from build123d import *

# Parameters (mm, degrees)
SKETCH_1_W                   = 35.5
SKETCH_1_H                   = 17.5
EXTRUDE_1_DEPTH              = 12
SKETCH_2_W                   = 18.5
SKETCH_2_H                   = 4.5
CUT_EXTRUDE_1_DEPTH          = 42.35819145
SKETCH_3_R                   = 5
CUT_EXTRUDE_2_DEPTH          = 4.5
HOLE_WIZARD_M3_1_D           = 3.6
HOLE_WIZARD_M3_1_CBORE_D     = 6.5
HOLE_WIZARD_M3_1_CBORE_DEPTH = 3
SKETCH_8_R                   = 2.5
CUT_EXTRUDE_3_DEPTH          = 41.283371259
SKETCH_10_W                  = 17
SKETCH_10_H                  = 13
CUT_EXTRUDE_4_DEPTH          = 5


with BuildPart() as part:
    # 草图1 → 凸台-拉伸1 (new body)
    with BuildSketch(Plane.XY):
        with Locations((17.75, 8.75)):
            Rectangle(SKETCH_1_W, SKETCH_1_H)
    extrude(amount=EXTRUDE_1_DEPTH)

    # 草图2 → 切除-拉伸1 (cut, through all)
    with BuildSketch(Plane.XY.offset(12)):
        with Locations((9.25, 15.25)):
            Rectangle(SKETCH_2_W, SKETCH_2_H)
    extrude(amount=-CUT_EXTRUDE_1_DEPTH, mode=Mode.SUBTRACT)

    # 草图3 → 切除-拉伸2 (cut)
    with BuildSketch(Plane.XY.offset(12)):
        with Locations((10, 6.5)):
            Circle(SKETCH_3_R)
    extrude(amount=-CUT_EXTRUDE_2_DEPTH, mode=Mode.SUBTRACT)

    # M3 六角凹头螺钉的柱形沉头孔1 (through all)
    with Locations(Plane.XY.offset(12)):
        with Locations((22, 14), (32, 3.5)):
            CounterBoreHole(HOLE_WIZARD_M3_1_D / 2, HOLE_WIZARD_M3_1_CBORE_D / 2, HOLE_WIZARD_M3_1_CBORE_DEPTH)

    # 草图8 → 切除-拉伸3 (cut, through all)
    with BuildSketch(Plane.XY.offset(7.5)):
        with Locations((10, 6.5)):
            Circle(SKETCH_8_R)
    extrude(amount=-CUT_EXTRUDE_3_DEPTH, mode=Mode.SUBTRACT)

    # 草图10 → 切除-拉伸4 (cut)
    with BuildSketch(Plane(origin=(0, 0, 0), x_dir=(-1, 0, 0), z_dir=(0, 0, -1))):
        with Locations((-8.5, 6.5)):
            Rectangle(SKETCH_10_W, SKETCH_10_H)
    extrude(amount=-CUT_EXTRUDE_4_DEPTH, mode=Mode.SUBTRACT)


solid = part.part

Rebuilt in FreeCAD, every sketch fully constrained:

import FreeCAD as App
import Part
import Sketcher
Q = App.Units.Quantity


def add_polygon(sketch, points):
    """Adds a closed chain of lines whose ends are joined by coincident constraints."""
    first, n = sketch.GeometryCount, len(points)
    for a, b in zip(points, points[1:] + points[:1]):
        sketch.addGeometry(Part.LineSegment(App.Vector(*a, 0), App.Vector(*b, 0)), False)
    for i in range(n):
        sketch.addConstraint(Sketcher.Constraint("Coincident", first + i, 2, first + (i + 1) % n, 1))

doc = App.newDocument("Part")
params = doc.addObject("Spreadsheet::Sheet", "Params")
for row, (alias, value) in enumerate([
    ("sketch1_width", "35.5 mm"),
    ("sketch1_height", "17.5 mm"),
    ("pad1_length", "12 mm"),
    ("sketch2_width", "18.5 mm"),
    ("sketch2_height", "4.5 mm"),
    ("sketch3_diameter", "10 mm"),
    ("pocket2_length", "4.5 mm"),
    ("sketch4_diameter", "3.6 mm"),
    ("hole_diameter", "3.6 mm"),
    ("hole_cbore_diameter", "6.5 mm"),
    ("hole_cbore_depth", "3 mm"),
    ("sketch5_diameter", "5 mm"),
    ("sketch6_width", "17 mm"),
    ("sketch6_height", "13 mm"),
    ("pocket4_length", "5 mm"),
], start=1):
    params.set(f"A{row}", alias)
    params.set(f"B{row}", "=" + value)
    params.setAlias(f"B{row}", alias)

body = doc.addObject("PartDesign::Body", "Body")

# Sketch on XY plane
sketch1 = body.newObject("Sketcher::SketchObject", "Sketch")
sketch1.AttachmentSupport = (doc.getObject("XY_Plane"), [""])
sketch1.MapMode = "FlatFace"
add_polygon(sketch1, [(0, 18), (0, 0), (36, 0), (36, 18)])  # lines 0-3
sketch1.addConstraint([
    Sketcher.Constraint("Vertical", 0),
    Sketcher.Constraint("Horizontal", 1),
    Sketcher.Constraint("Vertical", 2),
    Sketcher.Constraint("Horizontal", 3),
    Sketcher.Constraint("Coincident", 0, 2, -1, 1),
    Sketcher.Constraint("DistanceX", 1, 1, 1, 2, Q("35.5 mm")),
    Sketcher.Constraint("DistanceY", 0, 2, 0, 1, Q("17.5 mm")),
])
sketch1.setExpression("Constraints[9]", "Params.sketch1_width")
sketch1.setExpression("Constraints[10]", "Params.sketch1_height")
pad1 = body.newObject("PartDesign::Pad", "Pad")
pad1.Profile = sketch1
pad1.setExpression("Length", "Params.pad1_length")

# Sketch on XY plane
sketch2 = body.newObject("Sketcher::SketchObject", "Sketch001")
sketch2.AttachmentSupport = (doc.getObject("XY_Plane"), [""])
sketch2.MapMode = "FlatFace"
sketch2.AttachmentOffset = App.Placement(App.Vector(0, 0, 12), App.Rotation())
add_polygon(sketch2, [(0, 17.5), (0, 13), (18.5, 13), (18.5, 17.5)])  # lines 0-3
sketch2.addConstraint([
    Sketcher.Constraint("Vertical", 0),
    Sketcher.Constraint("Horizontal", 1),
    Sketcher.Constraint("Vertical", 2),
    Sketcher.Constraint("Horizontal", 3),
    Sketcher.Constraint("PointOnObject", 0, 2, -2),
    Sketcher.Constraint("DistanceX", 1, 1, 1, 2, Q("18.5 mm")),
    Sketcher.Constraint("DistanceY", 0, 2, 0, 1, Q("4.5 mm")),
    Sketcher.Constraint("DistanceY", -1, 1, 0, 2, Q("13 mm")),
])
sketch2.setExpression("Constraints[9]", "Params.sketch2_width")
sketch2.setExpression("Constraints[10]", "Params.sketch2_height")
pocket1 = body.newObject("PartDesign::Pocket", "Pocket")
pocket1.Profile = sketch2
pocket1.Type = "ThroughAll"

# Sketch on XY plane
sketch3 = body.newObject("Sketcher::SketchObject", "Sketch002")
sketch3.AttachmentSupport = (doc.getObject("XY_Plane"), [""])
sketch3.MapMode = "FlatFace"
sketch3.AttachmentOffset = App.Placement(App.Vector(0, 0, 12), App.Rotation())
sketch3.addGeometry(Part.Circle(App.Vector(10, 6, 0), App.Vector(0, 0, 1), 5), False)
sketch3.addConstraint([
    Sketcher.Constraint("Diameter", 0, Q("10 mm")),
    Sketcher.Constraint("DistanceX", -1, 1, 0, 3, Q("10 mm")),
    Sketcher.Constraint("DistanceY", -1, 1, 0, 3, Q("6.5 mm")),
])
sketch3.setExpression("Constraints[0]", "Params.sketch3_diameter")
pocket2 = body.newObject("PartDesign::Pocket", "Pocket001")
pocket2.Profile = sketch3
pocket2.setExpression("Length", "Params.pocket2_length")

# Sketch on XY plane
sketch4 = body.newObject("Sketcher::SketchObject", "Sketch003")
sketch4.AttachmentSupport = (doc.getObject("XY_Plane"), [""])
sketch4.MapMode = "FlatFace"
sketch4.AttachmentOffset = App.Placement(App.Vector(0, 0, 12), App.Rotation())
sketch4.addGeometry([
    Part.Circle(App.Vector(22, 14, 0), App.Vector(0, 0, 1), 1.8),
    Part.Circle(App.Vector(32, 3.5, 0), App.Vector(0, 0, 1), 1.8),
], False)
sketch4.addConstraint([
    Sketcher.Constraint("Equal", 0, 1),
    Sketcher.Constraint("Diameter", 0, Q("3.6 mm")),
    Sketcher.Constraint("DistanceX", -1, 1, 0, 3, Q("22 mm")),
    Sketcher.Constraint("DistanceY", -1, 1, 0, 3, Q("14 mm")),
    Sketcher.Constraint("DistanceX", -1, 1, 1, 3, Q("32 mm")),
    Sketcher.Constraint("DistanceY", -1, 1, 1, 3, Q("3.5 mm")),
])
sketch4.setExpression("Constraints[1]", "Params.sketch4_diameter")
doc.recompute()
hole = body.newObject("PartDesign::Hole", "Hole")
hole.Profile = sketch4
hole.ThreadType = "None"
hole.setExpression("Diameter", "Params.hole_diameter")
hole.DepthType = "ThroughAll"
hole.HoleCutType = "Counterbore"
hole.setExpression("HoleCutDiameter", "Params.hole_cbore_diameter")
hole.setExpression("HoleCutDepth", "Params.hole_cbore_depth")

# Sketch on XY plane
sketch5 = body.newObject("Sketcher::SketchObject", "Sketch004")
sketch5.AttachmentSupport = (doc.getObject("XY_Plane"), [""])
sketch5.MapMode = "FlatFace"
sketch5.AttachmentOffset = App.Placement(App.Vector(0, 0, 7.5), App.Rotation())
sketch5.addGeometry(Part.Circle(App.Vector(10, 6.5, 0), App.Vector(0, 0, 1), 2.5), False)
sketch5.addConstraint([
    Sketcher.Constraint("Diameter", 0, Q("5 mm")),
    Sketcher.Constraint("DistanceX", -1, 1, 0, 3, Q("10 mm")),
    Sketcher.Constraint("DistanceY", -1, 1, 0, 3, Q("6.5 mm")),
])
sketch5.setExpression("Constraints[0]", "Params.sketch5_diameter")
pocket3 = body.newObject("PartDesign::Pocket", "Pocket002")
pocket3.Profile = sketch5
pocket3.Type = "ThroughAll"

# Sketch on XY plane
sketch6 = body.newObject("Sketcher::SketchObject", "Sketch005")
sketch6.AttachmentSupport = (doc.getObject("XY_Plane"), [""])
sketch6.MapMode = "FlatFace"
add_polygon(sketch6, [(17, 13), (17, 0), (0, 0), (0, 13)])  # lines 0-3
sketch6.addConstraint([
    Sketcher.Constraint("Vertical", 0),
    Sketcher.Constraint("Horizontal", 1),
    Sketcher.Constraint("Vertical", 2),
    Sketcher.Constraint("Horizontal", 3),
    Sketcher.Constraint("Coincident", 1, 2, -1, 1),
    Sketcher.Constraint("DistanceX", 1, 2, 1, 1, Q("17 mm")),
    Sketcher.Constraint("DistanceY", 0, 2, 0, 1, Q("13 mm")),
])
sketch6.setExpression("Constraints[9]", "Params.sketch6_width")
sketch6.setExpression("Constraints[10]", "Params.sketch6_height")
pocket4 = body.newObject("PartDesign::Pocket", "Pocket003")
pocket4.Profile = sketch6
pocket4.setExpression("Length", "Params.pocket4_length")
pocket4.Reversed = True

doc.recompute()
